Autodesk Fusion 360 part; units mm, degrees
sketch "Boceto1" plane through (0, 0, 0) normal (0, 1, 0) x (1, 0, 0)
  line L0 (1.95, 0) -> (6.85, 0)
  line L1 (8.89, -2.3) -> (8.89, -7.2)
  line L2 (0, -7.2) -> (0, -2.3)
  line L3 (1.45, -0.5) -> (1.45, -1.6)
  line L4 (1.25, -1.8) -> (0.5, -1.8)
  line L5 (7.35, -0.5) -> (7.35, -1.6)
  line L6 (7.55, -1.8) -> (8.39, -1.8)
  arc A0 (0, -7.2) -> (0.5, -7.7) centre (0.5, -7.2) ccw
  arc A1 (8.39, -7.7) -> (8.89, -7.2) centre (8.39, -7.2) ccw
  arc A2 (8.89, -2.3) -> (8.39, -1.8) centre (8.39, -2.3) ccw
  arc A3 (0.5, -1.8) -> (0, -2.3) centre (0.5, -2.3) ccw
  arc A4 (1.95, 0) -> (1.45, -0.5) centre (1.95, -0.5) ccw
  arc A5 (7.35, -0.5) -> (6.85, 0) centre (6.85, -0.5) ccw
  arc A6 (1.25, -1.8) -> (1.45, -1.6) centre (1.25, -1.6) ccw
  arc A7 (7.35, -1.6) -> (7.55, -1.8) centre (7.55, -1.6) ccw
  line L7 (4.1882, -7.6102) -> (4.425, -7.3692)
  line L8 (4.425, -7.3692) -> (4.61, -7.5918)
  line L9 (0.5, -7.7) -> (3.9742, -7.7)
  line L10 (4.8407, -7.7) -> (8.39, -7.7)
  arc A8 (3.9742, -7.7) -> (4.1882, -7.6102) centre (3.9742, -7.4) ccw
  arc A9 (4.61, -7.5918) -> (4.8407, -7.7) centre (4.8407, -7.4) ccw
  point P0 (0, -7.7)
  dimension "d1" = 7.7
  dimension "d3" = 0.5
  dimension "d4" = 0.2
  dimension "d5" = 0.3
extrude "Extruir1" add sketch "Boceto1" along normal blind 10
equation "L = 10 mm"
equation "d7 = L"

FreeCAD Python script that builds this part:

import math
import FreeCAD as App
import Part
import Sketcher
Q = App.Units.Quantity

doc = App.newDocument("Part")
body = doc.addObject("PartDesign::Body", "Body")

# Sketch on XZ plane
sketch1 = body.newObject("Sketcher::SketchObject", "Sketch")
sketch1.AttachmentSupport = (doc.getObject("XZ_Plane"), [""])
sketch1.MapMode = "FlatFace"
sketch1.addGeometry([
    Part.LineSegment(App.Vector(6.85, 0, 0), App.Vector(1.95, 0, 0)),  # 0
    Part.ArcOfCircle(Part.Circle(App.Vector(1.95, 0.5, 0), App.Vector(0, 0, 1), 0.5), math.radians(180), math.radians(270)),  # 1
    Part.LineSegment(App.Vector(1.45, 0.5, 0), App.Vector(1.45, 1.6, 0)),  # 2
    Part.ArcOfCircle(Part.Circle(App.Vector(1.25, 1.6, 0), App.Vector(0, 0, 1), 0.2), math.radians(0), math.radians(90)),  # 3
    Part.LineSegment(App.Vector(1.25, 1.8, 0), App.Vector(0.5, 1.8, 0)),  # 4
    Part.ArcOfCircle(Part.Circle(App.Vector(0.5, 2.3, 0), App.Vector(0, 0, 1), 0.5), math.radians(180), math.radians(270)),  # 5
    Part.LineSegment(App.Vector(0, 2.3, 0), App.Vector(0, 7.2, 0)),  # 6
    Part.ArcOfCircle(Part.Circle(App.Vector(0.5, 7.2, 0), App.Vector(0, 0, 1), 0.5), math.radians(90), math.radians(180)),  # 7
    Part.LineSegment(App.Vector(0.5, 7.7, 0), App.Vector(3.97, 7.7, 0)),  # 8
    Part.ArcOfCircle(Part.Circle(App.Vector(3.97, 7.4, 0), App.Vector(0, 0, 1), 0.3), math.radians(44), math.radians(90)),  # 9
    Part.LineSegment(App.Vector(4.19, 7.61, 0), App.Vector(4.42, 7.37, 0)),  # 10
    Part.LineSegment(App.Vector(4.42, 7.37, 0), App.Vector(4.61, 7.59, 0)),  # 11
    Part.ArcOfCircle(Part.Circle(App.Vector(4.84, 7.4, 0), App.Vector(0, 0, 1), 0.3), math.radians(90), math.radians(140)),  # 12
    Part.LineSegment(App.Vector(4.84, 7.7, 0), App.Vector(8.39, 7.7, 0)),  # 13
    Part.ArcOfCircle(Part.Circle(App.Vector(8.39, 7.2, 0), App.Vector(0, 0, 1), 0.5), math.radians(0), math.radians(90)),  # 14
    Part.LineSegment(App.Vector(8.89, 7.2, 0), App.Vector(8.89, 2.3, 0)),  # 15
    Part.ArcOfCircle(Part.Circle(App.Vector(8.39, 2.3, 0), App.Vector(0, 0, 1), 0.5), math.radians(-90), math.radians(0)),  # 16
    Part.LineSegment(App.Vector(8.39, 1.8, 0), App.Vector(7.55, 1.8, 0)),  # 17
    Part.ArcOfCircle(Part.Circle(App.Vector(7.55, 1.6, 0), App.Vector(0, 0, 1), 0.2), math.radians(90), math.radians(180)),  # 18
    Part.LineSegment(App.Vector(7.35, 1.6, 0), App.Vector(7.35, 0.5, 0)),  # 19
    Part.ArcOfCircle(Part.Circle(App.Vector(6.85, 0.5, 0), App.Vector(0, 0, 1), 0.5), math.radians(-90), math.radians(0)),  # 20
], False)
sketch1.addConstraint([
    Sketcher.Constraint("Tangent", 0, 2, 1, 2),
    Sketcher.Constraint("Tangent", 1, 1, 2, 1),
    Sketcher.Constraint("Tangent", 2, 2, 3, 1),
    Sketcher.Constraint("Tangent", 3, 2, 4, 1),
    Sketcher.Constraint("Tangent", 4, 2, 5, 2),
    Sketcher.Constraint("Tangent", 5, 1, 6, 1),
    Sketcher.Constraint("Tangent", 6, 2, 7, 2),
    Sketcher.Constraint("Tangent", 7, 1, 8, 1),
    Sketcher.Constraint("Tangent", 8, 2, 9, 2),
    Sketcher.Constraint("Tangent", 9, 1, 10, 1),
    Sketcher.Constraint("Coincident", 10, 2, 11, 1),
    Sketcher.Constraint("Tangent", 11, 2, 12, 2),
    Sketcher.Constraint("Tangent", 12, 1, 13, 1),
    Sketcher.Constraint("Tangent", 13, 2, 14, 2),
    Sketcher.Constraint("Tangent", 14, 1, 15, 1),
    Sketcher.Constraint("Tangent", 15, 2, 16, 2),
    Sketcher.Constraint("Tangent", 16, 1, 17, 1),
    Sketcher.Constraint("Tangent", 17, 2, 18, 1),
    Sketcher.Constraint("Tangent", 18, 2, 19, 1),
    Sketcher.Constraint("Tangent", 19, 2, 20, 2),
    Sketcher.Constraint("Tangent", 20, 1, 0, 1),
    Sketcher.Constraint("Horizontal", 0),
    Sketcher.Constraint("Vertical", 2),
    Sketcher.Constraint("Horizontal", 4),
    Sketcher.Constraint("Vertical", 6),
    Sketcher.Constraint("Horizontal", 8),
    Sketcher.Constraint("Horizontal", 13),
    Sketcher.Constraint("Vertical", 15),
    Sketcher.Constraint("Horizontal", 17),
    Sketcher.Constraint("Vertical", 19),
    Sketcher.Constraint("Equal", 1, 5),
    Sketcher.Constraint("Equal", 5, 7),
    Sketcher.Constraint("Equal", 9, 12),
    Sketcher.Constraint("Equal", 7, 14),
    Sketcher.Constraint("Equal", 14, 16),
    Sketcher.Constraint("Equal", 3, 18),
    Sketcher.Constraint("Equal", 16, 20),
    Sketcher.Constraint("PointOnObject", 0, 2, -1),
    Sketcher.Constraint("PointOnObject", 5, 1, -2),
    Sketcher.Constraint("Horizontal", 9, 3, 12, 3),
    Sketcher.Constraint("Horizontal", 5, 3, 16, 3),
    Sketcher.Constraint("Equal", 0, 6),
    Sketcher.Constraint("Radius", 1, Q("0.5 mm")),
    Sketcher.Constraint("Radius", 3, Q("0.2 mm")),
    Sketcher.Constraint("Radius", 9, Q("0.3 mm")),
    Sketcher.Constraint("DistanceY", -1, 1, 7, 1, Q("7.7 mm")),
    Sketcher.Constraint("DistanceX", 0, 2, 0, 1, Q("4.9 mm")),
    Sketcher.Constraint("DistanceX", 4, 2, 4, 1, Q("0.75 mm")),
    Sketcher.Constraint("DistanceX", 17, 2, 17, 1, Q("0.84 mm")),
    Sketcher.Constraint("Angle", 11, Q("50.2705 deg")),
    Sketcher.Constraint("DistanceX", -1, 1, 11, 2, Q("4.61 mm")),
    Sketcher.Constraint("DistanceX", 8, 1, 8, 2, Q("3.4742 mm")),
    Sketcher.Constraint("DistanceX", -1, 1, 10, 2, Q("4.425 mm")),
])
pad1 = body.newObject("PartDesign::Pad", "Pad")
pad1.Profile = sketch1
pad1.Length = 10
pad1.Reversed = True

doc.recompute()
